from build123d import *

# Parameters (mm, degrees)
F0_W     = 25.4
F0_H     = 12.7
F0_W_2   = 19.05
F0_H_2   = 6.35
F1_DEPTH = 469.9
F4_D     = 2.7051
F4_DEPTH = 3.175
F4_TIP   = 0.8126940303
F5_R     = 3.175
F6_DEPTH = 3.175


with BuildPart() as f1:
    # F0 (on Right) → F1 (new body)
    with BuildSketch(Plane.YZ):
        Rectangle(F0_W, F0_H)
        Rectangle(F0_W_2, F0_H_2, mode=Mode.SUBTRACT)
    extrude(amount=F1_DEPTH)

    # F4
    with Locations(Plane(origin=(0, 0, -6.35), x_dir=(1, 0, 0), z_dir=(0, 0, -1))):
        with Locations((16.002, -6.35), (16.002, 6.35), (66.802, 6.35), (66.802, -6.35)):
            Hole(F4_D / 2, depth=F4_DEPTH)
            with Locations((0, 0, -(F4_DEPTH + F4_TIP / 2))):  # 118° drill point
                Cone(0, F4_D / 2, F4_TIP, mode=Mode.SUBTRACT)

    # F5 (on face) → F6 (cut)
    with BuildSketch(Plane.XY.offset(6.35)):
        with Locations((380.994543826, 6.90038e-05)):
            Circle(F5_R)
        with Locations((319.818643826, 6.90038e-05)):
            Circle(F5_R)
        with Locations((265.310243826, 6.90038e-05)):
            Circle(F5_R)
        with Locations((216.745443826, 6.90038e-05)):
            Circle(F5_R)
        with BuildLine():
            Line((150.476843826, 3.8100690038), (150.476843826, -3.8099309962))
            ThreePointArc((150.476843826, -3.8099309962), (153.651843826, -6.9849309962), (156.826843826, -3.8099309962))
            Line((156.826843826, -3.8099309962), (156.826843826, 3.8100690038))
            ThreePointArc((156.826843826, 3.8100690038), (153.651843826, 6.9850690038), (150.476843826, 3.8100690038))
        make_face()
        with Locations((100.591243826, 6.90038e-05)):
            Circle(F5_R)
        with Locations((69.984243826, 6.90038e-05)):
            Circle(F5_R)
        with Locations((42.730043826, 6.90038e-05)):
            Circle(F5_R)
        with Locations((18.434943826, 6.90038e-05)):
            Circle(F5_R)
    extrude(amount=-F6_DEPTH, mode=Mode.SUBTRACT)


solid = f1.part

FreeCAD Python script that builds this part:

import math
import FreeCAD as App
import Part
import Sketcher
from FreeCAD import Vector
Q = App.Units.Quantity

doc = App.newDocument("Part")
body = doc.addObject("PartDesign::Body", "Body")

sketch1 = body.newObject("Sketcher::SketchObject", "Sketch")
sketch1.AttachmentSupport = (doc.getObject("YZ_Plane"), [""])
sketch1.MapMode = "FlatFace"
sketch1.addGeometry([
    Part.LineSegment(Vector(-12.7, 6.35, 0), Vector(-12.7, -6.35, 0)),
    Part.LineSegment(Vector(-12.7, -6.35, 0), Vector(12.7, -6.35, 0)),
    Part.LineSegment(Vector(12.7, -6.35, 0), Vector(12.7, 6.35, 0)),
    Part.LineSegment(Vector(12.7, 6.35, 0), Vector(-12.7, 6.35, 0)),
    Part.LineSegment(Vector(9.525, -3.175, 0), Vector(-9.525, -3.175, 0)),
    Part.LineSegment(Vector(-9.525, -3.175, 0), Vector(-9.525, 3.175, 0)),
    Part.LineSegment(Vector(-9.525, 3.175, 0), Vector(9.525, 3.175, 0)),
    Part.LineSegment(Vector(9.525, 3.175, 0), Vector(9.525, -3.175, 0)),
], False)
sketch1.addConstraint([
    Sketcher.Constraint("Coincident", 0, 2, 1, 1),
    Sketcher.Constraint("Coincident", 1, 2, 2, 1),
    Sketcher.Constraint("Coincident", 2, 2, 3, 1),
    Sketcher.Constraint("Coincident", 3, 2, 0, 1),
    Sketcher.Constraint("Coincident", 4, 2, 5, 1),
    Sketcher.Constraint("Coincident", 5, 2, 6, 1),
    Sketcher.Constraint("Coincident", 6, 2, 7, 1),
    Sketcher.Constraint("Coincident", 7, 2, 4, 1),
    Sketcher.Constraint("Vertical", 0),
    Sketcher.Constraint("Horizontal", 1),
    Sketcher.Constraint("Vertical", 2),
    Sketcher.Constraint("Horizontal", 3),
    Sketcher.Constraint("Horizontal", 4),
    Sketcher.Constraint("Vertical", 5),
    Sketcher.Constraint("Horizontal", 6),
    Sketcher.Constraint("Vertical", 7),
    Sketcher.Constraint("Symmetric", 0, 2, 2, 2, -1, 1),
    Sketcher.Constraint("Symmetric", 4, 2, 6, 2, -1, 1),
    Sketcher.Constraint("DistanceX", 1, 1, 1, 2, Q("1 in")),
    Sketcher.Constraint("DistanceY", 0, 2, 0, 1, Q("0.5 in")),
    Sketcher.Constraint("DistanceX", 4, 2, 4, 1, Q("0.75 in")),
    Sketcher.Constraint("DistanceY", 5, 1, 5, 2, Q("0.25 in")),
])
pad1 = body.newObject("PartDesign::Pad", "Pad")
pad1.Profile = sketch1
pad1.Length = Q("18.5 in")

sketch2 = body.newObject("Sketcher::SketchObject", "Sketch001")
sketch2.AttachmentSupport = (doc.getObject("XY_Plane"), [""])
sketch2.MapMode = "FlatFace"
sketch2.AttachmentOffset = App.Placement(Vector(0, 0, -0.25 * 25.4), App.Rotation())
sketch2.addGeometry([
    Part.Circle(Vector(16.002, 6.35, 0), Vector(0, 0, 1), 1.35255),
    Part.Circle(Vector(16.002, -6.35, 0), Vector(0, 0, 1), 1.35255),
    Part.Circle(Vector(66.802, -6.35, 0), Vector(0, 0, 1), 1.35255),
    Part.Circle(Vector(66.802, 6.35, 0), Vector(0, 0, 1), 1.35255),
], False)
sketch2.addConstraint([
    Sketcher.Constraint("Equal", 0, 1),
    Sketcher.Constraint("Equal", 1, 2),
    Sketcher.Constraint("Equal", 2, 3),
    Sketcher.Constraint("Symmetric", 0, 3, 1, 3, -1),
    Sketcher.Constraint("Symmetric", 2, 3, 3, 3, -1),
    Sketcher.Constraint("Horizontal", 1, 3, 2, 3),
    Sketcher.Constraint("DistanceX", 1, 3, 2, 3, Q("2 in")),
    Sketcher.Constraint("Diameter", 0, Q("0.1065 in")),
    Sketcher.Constraint("DistanceY", 1, 3, 0, 3, Q("0.5 in")),
    Sketcher.Constraint("DistanceX", -1, 1, 0, 3, Q("0.63 in")),
])
doc.recompute()
hole = body.newObject("PartDesign::Hole", "Hole")
hole.Profile = sketch2
hole.ThreadType = "None"
hole.Diameter = Q("0.1065 in")
hole.DepthType = "Dimension"
hole.Depth = Q("0.125 in")
hole.DrillPoint = "Angled"
hole.DrillPointAngle = 118
hole.Reversed = True

sketch3 = body.newObject("Sketcher::SketchObject", "Sketch002")
sketch3.AttachmentSupport = (doc.getObject("XY_Plane"), [""])
sketch3.MapMode = "FlatFace"
sketch3.AttachmentOffset = App.Placement(Vector(0, 0, 0.25 * 25.4), App.Rotation())
sketch3.addGeometry([
    Part.Circle(Vector(380.994544, 0.000069, 0), Vector(0, 0, 1), 3.175),
    Part.Circle(Vector(319.818644, 0.000069, 0), Vector(0, 0, 1), 3.175),
    Part.Circle(Vector(265.310244, 0.000069, 0), Vector(0, 0, 1), 3.175),
    Part.Circle(Vector(216.745444, 0.000069, 0), Vector(0, 0, 1), 3.175),
    Part.LineSegment(Vector(150.476844, 3.810069, 0), Vector(150.476844, -3.809931, 0)),
    Part.ArcOfCircle(Part.Circle(Vector(153.651844, -3.809931, 0), Vector(0, 0, 1), 3.175), math.radians(180), math.radians(360)),
    Part.LineSegment(Vector(156.826844, -3.809931, 0), Vector(156.826844, 3.810069, 0)),
    Part.ArcOfCircle(Part.Circle(Vector(153.651844, 3.810069, 0), Vector(0, 0, 1), 3.175), math.radians(0), math.radians(180)),
    Part.Circle(Vector(100.591244, 0.000069, 0), Vector(0, 0, 1), 3.175),
    Part.Circle(Vector(69.984244, 0.000069, 0), Vector(0, 0, 1), 3.175),
    Part.Circle(Vector(42.730044, 0.000069, 0), Vector(0, 0, 1), 3.175),
    Part.Circle(Vector(18.434944, 0.000069, 0), Vector(0, 0, 1), 3.175),
], False)
sketch3.addConstraint([
    Sketcher.Constraint("Tangent", 4, 2, 5, 1),
    Sketcher.Constraint("Tangent", 5, 2, 6, 1),
    Sketcher.Constraint("Tangent", 6, 2, 7, 1),
    Sketcher.Constraint("Tangent", 7, 2, 4, 1),
    Sketcher.Constraint("Vertical", 4),
    Sketcher.Constraint("Vertical", 6),
    Sketcher.Constraint("Equal", 0, 1),
    Sketcher.Constraint("Equal", 1, 2),
    Sketcher.Constraint("Equal", 2, 3),
    Sketcher.Constraint("Equal", 3, 5),
    Sketcher.Constraint("Equal", 7, 8),
    Sketcher.Constraint("Equal", 8, 9),
    Sketcher.Constraint("Equal", 9, 10),
    Sketcher.Constraint("Equal", 10, 11),
    Sketcher.Constraint("Horizontal", 0, 3, 1, 3),
    Sketcher.Constraint("Horizontal", 1, 3, 2, 3),
    Sketcher.Constraint("Horizontal", 2, 3, 3, 3),
    Sketcher.Constraint("Horizontal", 3, 3, 8, 3),
    Sketcher.Constraint("Horizontal", 8, 3, 9, 3),
    Sketcher.Constraint("Horizontal", 9, 3, 10, 3),
    Sketcher.Constraint("Horizontal", 10, 3, 11, 3),
    Sketcher.Constraint("Diameter", 0, Q("0.25 in")),
    Sketcher.Constraint("DistanceY", 4, 2, 4, 1, Q("0.3 in")),
    Sketcher.Constraint("DistanceY", 5, 3, 3, 3, Q("0.15 in")),
    Sketcher.Constraint("DistanceX", 9, 3, 2, 3, Q("7.69 in")),
    Sketcher.Constraint("DistanceX", 2, 3, 1, 3, Q("2.146 in")),
    Sketcher.Constraint("DistanceX", 3, 3, 2, 3, Q("1.912 in")),
    Sketcher.Constraint("DistanceX", 5, 3, 3, 3, Q("2.484 in")),
    Sketcher.Constraint("DistanceX", 8, 3, 5, 3, Q("2.089 in")),
    Sketcher.Constraint("DistanceX", 10, 3, 9, 3, Q("1.073 in")),
    Sketcher.Constraint("DistanceX", 1, 3, 0, 3, Q("2.4085 in")),
    Sketcher.Constraint("DistanceX", 11, 3, 10, 3, Q("0.9565 in")),
    Sketcher.Constraint("DistanceY", 5, 3, -1, 1, Q("3.809931 mm")),
    Sketcher.Constraint("DistanceX", -1, 1, 0, 3, Q("380.994544 mm")),
])
pocket1 = body.newObject("PartDesign::Pocket", "Pocket")
pocket1.Profile = sketch3
pocket1.Length = Q("0.125 in")

doc.recompute()
